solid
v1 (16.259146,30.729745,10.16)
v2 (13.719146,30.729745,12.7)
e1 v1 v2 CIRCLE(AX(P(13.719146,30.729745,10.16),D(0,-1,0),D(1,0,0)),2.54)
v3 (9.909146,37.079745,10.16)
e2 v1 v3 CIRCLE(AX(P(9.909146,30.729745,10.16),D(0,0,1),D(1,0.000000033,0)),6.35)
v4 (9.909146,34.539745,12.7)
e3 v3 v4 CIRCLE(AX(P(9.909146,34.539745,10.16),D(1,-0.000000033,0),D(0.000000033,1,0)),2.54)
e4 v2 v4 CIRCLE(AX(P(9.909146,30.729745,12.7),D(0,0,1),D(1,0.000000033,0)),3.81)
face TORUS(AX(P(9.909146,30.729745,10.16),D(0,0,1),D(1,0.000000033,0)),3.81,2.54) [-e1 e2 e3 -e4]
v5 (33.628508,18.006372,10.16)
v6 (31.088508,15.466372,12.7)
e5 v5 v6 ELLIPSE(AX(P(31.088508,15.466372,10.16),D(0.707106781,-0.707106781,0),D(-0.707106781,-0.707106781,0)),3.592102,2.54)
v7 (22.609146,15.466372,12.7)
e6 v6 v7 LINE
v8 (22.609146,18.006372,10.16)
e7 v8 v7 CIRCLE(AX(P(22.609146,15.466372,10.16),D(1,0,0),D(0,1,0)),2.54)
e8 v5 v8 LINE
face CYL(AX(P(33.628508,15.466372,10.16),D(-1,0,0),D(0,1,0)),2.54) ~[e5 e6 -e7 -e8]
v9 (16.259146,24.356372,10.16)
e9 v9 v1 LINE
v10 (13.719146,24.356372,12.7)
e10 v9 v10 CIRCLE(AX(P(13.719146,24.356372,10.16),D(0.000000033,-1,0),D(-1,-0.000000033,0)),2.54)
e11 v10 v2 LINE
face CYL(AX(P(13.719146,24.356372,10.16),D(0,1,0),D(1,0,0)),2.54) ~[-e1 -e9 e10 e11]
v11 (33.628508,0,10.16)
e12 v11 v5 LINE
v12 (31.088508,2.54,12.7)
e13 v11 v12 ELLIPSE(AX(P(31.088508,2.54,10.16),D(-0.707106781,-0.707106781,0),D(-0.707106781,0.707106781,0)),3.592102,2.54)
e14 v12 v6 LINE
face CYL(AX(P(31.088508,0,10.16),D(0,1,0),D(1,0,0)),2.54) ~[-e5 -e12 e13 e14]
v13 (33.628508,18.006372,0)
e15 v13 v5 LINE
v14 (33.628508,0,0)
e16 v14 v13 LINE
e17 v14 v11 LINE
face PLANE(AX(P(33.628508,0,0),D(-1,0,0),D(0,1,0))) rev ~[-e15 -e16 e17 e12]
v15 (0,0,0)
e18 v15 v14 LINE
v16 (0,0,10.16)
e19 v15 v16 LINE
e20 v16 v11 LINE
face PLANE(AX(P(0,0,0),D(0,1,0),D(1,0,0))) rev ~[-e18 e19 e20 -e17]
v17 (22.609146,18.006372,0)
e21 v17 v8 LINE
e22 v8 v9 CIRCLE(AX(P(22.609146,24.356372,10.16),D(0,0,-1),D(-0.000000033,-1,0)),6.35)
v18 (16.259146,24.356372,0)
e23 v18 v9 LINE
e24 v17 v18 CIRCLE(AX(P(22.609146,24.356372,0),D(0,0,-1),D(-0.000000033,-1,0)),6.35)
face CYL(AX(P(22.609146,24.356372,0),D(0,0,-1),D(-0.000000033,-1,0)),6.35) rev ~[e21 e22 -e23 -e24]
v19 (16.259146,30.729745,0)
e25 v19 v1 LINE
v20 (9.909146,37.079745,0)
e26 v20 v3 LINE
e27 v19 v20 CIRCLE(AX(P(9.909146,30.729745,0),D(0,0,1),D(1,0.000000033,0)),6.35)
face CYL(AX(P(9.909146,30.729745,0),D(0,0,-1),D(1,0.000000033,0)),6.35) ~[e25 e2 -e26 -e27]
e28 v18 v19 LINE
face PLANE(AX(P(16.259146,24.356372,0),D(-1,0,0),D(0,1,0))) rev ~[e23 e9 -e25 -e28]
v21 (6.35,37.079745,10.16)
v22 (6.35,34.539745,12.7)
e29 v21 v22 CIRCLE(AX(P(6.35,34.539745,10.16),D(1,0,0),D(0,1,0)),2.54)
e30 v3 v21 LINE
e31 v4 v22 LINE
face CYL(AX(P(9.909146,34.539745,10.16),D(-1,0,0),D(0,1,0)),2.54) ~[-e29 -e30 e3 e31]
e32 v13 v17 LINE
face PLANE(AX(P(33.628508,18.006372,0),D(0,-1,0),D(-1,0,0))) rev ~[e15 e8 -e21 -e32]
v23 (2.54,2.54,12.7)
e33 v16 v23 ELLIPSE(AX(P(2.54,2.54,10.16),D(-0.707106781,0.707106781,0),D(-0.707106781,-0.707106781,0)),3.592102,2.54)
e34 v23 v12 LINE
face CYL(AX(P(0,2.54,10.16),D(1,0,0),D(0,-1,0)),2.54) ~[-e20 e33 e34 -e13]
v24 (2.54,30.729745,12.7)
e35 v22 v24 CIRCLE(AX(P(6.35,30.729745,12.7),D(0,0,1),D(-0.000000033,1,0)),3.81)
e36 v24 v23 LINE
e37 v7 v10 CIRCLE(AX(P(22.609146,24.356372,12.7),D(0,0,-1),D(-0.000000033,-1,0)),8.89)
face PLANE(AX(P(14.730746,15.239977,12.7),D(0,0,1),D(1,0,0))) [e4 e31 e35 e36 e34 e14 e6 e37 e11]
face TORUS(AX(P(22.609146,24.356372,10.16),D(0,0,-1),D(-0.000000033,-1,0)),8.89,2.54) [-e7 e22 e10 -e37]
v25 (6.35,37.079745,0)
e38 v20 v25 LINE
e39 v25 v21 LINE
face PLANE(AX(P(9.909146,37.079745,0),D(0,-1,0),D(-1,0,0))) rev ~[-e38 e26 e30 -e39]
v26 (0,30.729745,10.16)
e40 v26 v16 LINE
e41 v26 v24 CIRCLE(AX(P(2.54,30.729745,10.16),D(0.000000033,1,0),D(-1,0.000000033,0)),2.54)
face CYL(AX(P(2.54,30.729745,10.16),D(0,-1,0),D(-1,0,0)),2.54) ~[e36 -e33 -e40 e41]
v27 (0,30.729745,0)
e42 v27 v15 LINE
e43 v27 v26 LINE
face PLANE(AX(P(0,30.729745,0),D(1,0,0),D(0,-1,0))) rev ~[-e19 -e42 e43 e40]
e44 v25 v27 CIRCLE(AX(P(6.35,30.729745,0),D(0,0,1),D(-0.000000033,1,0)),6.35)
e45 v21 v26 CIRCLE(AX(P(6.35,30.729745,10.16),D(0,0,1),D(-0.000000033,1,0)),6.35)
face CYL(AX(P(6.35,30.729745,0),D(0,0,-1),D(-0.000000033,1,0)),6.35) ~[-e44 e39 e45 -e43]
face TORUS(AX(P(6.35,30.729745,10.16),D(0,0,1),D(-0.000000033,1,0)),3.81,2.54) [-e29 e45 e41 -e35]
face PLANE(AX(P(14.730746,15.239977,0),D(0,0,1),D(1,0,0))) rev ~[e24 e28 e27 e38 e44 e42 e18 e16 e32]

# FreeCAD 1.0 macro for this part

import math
import FreeCAD as App
import Part
import Sketcher
Q = App.Units.Quantity


def edges_at(feature, points):
    """Names of the edges that pass closest to the given points."""
    edges = feature.Shape.Edges
    near = lambda p: min(range(len(edges)), key=lambda i: edges[i].distToShape(Part.Vertex(*p))[0])
    return sorted({f"Edge{near(p) + 1}" for p in points})

doc = App.newDocument("Part")
body = doc.addObject("PartDesign::Body", "Body")

# Sketch on XY plane
sketch1 = doc.addObject("Sketcher::SketchObject", "Sketch")
body.addObject(sketch1)
sketch1.AttachmentSupport = (doc.XY_Plane, [""])
sketch1.MapMode = "FlatFace"
sketch1.addGeometry([
    Part.LineSegment(App.Vector(0, 30.729745, 0), App.Vector(0, 0, 0)),  # 0
    Part.LineSegment(App.Vector(0, 0, 0), App.Vector(33.628508, 0, 0)),  # 1
    Part.LineSegment(App.Vector(33.628508, 0, 0), App.Vector(33.628508, 18.006372, 0)),  # 2
    Part.LineSegment(App.Vector(33.628508, 18.006372, 0), App.Vector(22.609146, 18.006372, 0)),  # 3
    Part.ArcOfCircle(Part.Circle(App.Vector(22.609146, 24.356372, 0), App.Vector(0, 0, 1), 6.35), math.radians(-179.999998), math.radians(-90.000002)),  # 4
    Part.LineSegment(App.Vector(16.259146, 24.356372, 0), App.Vector(16.259146, 30.729745, 0)),  # 5
    Part.ArcOfCircle(Part.Circle(App.Vector(9.909146, 30.729745, 0), App.Vector(0, 0, 1), 6.35), math.radians(0.000002), math.radians(89.999998)),  # 6
    Part.LineSegment(App.Vector(9.909146, 37.079745, 0), App.Vector(6.35, 37.079745, 0)),  # 7
    Part.ArcOfCircle(Part.Circle(App.Vector(6.35, 30.729745, 0), App.Vector(0, 0, 1), 6.35), math.radians(90.000002), math.radians(179.999998)),  # 8
], False)
sketch1.addConstraint([
    Sketcher.Constraint("Coincident", 0, 2, 1, 1),
    Sketcher.Constraint("Coincident", 1, 2, 2, 1),
    Sketcher.Constraint("Coincident", 2, 2, 3, 1),
    Sketcher.Constraint("Tangent", 3, 2, 4, 2),
    Sketcher.Constraint("Tangent", 4, 1, 5, 1),
    Sketcher.Constraint("Tangent", 5, 2, 6, 1),
    Sketcher.Constraint("Tangent", 6, 2, 7, 1),
    Sketcher.Constraint("Tangent", 7, 2, 8, 1),
    Sketcher.Constraint("Tangent", 8, 2, 0, 1),
    Sketcher.Constraint("Vertical", 0),
    Sketcher.Constraint("Horizontal", 1),
    Sketcher.Constraint("Vertical", 2),
    Sketcher.Constraint("Horizontal", 3),
    Sketcher.Constraint("Vertical", 5),
    Sketcher.Constraint("Horizontal", 7),
    Sketcher.Constraint("Coincident", 0, 2, -1, 1),
    Sketcher.Constraint("Equal", 4, 6),
    Sketcher.Constraint("Equal", 6, 8),
    Sketcher.Constraint("Radius", 4, Q("0.25 in")),
    Sketcher.Constraint("DistanceX", 3, 2, 3, 1, Q("11.019362 mm")),
    Sketcher.Constraint("DistanceY", 2, 1, 2, 2, Q("18.006372 mm")),
    Sketcher.Constraint("DistanceX", 1, 1, 1, 2, Q("33.628508 mm")),
    Sketcher.Constraint("DistanceY", 0, 2, 0, 1, Q("30.729745 mm")),
])
pad1 = doc.addObject("PartDesign::Pad", "Pad")
body.addObject(pad1)
pad1.Profile = sketch1
pad1.Length = Q("0.5 in")
doc.recompute()

fillet = doc.addObject("PartDesign::Fillet", "Fillet")
body.addObject(fillet)
fillet.Base = (pad1, edges_at(pad1, [
    (1.86, 35.22, 12.7),
    (8.13, 37.08, 12.7),
    (14.399, 35.22, 12.7),
    (16.259, 27.543, 12.7),
    (18.119, 19.866, 12.7),
    (28.119, 18.006, 12.7),
    (33.629, 9.003, 12.7),
    (16.814, 0, 12.7),
    (0, 15.365, 12.7),
]))
fillet.Radius = Q("0.1 in")

doc.recompute()
